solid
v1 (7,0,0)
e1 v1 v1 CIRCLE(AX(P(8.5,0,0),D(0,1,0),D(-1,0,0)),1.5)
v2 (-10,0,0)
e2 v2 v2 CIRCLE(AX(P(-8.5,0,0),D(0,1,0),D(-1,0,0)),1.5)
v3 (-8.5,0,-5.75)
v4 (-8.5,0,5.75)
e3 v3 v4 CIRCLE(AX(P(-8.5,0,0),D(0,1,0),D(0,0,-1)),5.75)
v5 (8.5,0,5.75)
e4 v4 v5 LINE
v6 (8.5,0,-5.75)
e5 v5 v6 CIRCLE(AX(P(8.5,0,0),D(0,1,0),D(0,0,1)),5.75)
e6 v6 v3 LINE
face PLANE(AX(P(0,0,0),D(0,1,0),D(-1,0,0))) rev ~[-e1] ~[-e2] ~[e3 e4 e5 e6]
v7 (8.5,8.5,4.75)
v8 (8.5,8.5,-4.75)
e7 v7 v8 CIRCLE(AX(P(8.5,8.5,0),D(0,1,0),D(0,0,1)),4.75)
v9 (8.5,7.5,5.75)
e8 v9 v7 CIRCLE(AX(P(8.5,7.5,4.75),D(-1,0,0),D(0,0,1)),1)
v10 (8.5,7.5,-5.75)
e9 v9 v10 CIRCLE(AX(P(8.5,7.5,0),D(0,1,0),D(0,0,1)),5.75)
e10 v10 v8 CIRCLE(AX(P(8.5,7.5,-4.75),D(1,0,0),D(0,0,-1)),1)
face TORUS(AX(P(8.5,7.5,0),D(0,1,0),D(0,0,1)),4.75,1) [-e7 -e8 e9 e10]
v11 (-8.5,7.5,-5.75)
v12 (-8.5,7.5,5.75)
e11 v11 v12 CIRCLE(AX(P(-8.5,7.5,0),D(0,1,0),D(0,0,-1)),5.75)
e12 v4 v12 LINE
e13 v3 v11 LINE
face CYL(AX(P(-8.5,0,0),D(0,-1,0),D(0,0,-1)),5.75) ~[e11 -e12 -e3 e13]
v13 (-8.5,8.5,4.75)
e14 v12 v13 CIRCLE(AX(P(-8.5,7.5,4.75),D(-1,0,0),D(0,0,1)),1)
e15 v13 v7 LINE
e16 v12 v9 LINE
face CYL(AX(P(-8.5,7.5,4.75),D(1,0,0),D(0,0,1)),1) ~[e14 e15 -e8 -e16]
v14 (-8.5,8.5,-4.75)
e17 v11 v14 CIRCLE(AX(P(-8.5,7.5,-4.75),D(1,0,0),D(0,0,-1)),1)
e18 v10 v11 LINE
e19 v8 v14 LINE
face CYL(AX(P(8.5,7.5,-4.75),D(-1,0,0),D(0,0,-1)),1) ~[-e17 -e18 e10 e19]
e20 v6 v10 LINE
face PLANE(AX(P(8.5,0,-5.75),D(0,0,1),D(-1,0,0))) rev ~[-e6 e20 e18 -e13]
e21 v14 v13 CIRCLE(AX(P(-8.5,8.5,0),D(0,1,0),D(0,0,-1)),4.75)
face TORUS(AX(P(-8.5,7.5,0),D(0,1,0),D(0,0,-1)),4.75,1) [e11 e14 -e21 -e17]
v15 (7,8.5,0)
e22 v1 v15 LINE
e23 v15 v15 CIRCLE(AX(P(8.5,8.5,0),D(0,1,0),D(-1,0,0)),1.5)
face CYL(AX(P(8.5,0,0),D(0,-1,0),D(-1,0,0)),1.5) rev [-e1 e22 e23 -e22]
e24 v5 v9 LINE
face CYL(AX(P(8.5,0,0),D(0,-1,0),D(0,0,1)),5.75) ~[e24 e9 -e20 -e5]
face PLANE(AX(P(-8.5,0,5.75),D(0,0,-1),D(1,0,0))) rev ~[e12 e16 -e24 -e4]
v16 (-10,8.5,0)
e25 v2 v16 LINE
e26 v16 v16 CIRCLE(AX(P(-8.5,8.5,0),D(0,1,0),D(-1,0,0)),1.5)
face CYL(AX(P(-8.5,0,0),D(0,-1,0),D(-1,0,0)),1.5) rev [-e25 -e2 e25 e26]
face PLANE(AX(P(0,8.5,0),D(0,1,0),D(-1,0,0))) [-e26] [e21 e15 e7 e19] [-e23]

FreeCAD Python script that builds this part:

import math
import FreeCAD as App
import Part
import Sketcher
from FreeCAD import Vector


def edges_at(feature, points):
    """Names of the edges that pass closest to the given points."""
    edges = feature.Shape.Edges
    near = lambda p: min(range(len(edges)), key=lambda i: edges[i].distToShape(Part.Vertex(*p))[0])
    return sorted({f"Edge{near(p) + 1}" for p in points})

doc = App.newDocument("Part")
body = doc.addObject("PartDesign::Body", "Body")

sketch1 = body.newObject("Sketcher::SketchObject", "Sketch")
sketch1.AttachmentSupport = (doc.getObject("XZ_Plane"), [""])
sketch1.MapMode = "FlatFace"
sketch1.addGeometry(Part.ArcOfCircle(Part.Circle(Vector(-8.5, 0, 0), Vector(0, 0, 1), 5.75), math.radians(90), math.radians(270)), False)
sketch1.addGeometry(Part.LineSegment(Vector(-8.5, 5.75, 0), Vector(8.5, 5.75, 0)), False)
sketch1.addGeometry(Part.ArcOfCircle(Part.Circle(Vector(8.5, 0, 0), Vector(0, 0, 1), 5.75), math.radians(-90), math.radians(90)), False)
sketch1.addGeometry(Part.LineSegment(Vector(8.5, -5.75, 0), Vector(-8.5, -5.75, 0)), False)
sketch1.addGeometry(Part.Circle(Vector(8.5, 0, 0), Vector(0, 0, 1), 1.5), False)
sketch1.addGeometry(Part.Circle(Vector(-8.5, 0, 0), Vector(0, 0, 1), 1.5), False)
sketch1.addConstraint(Sketcher.Constraint("Tangent", 0, 1, 1, 1))
sketch1.addConstraint(Sketcher.Constraint("Tangent", 1, 2, 2, 2))
sketch1.addConstraint(Sketcher.Constraint("Tangent", 2, 1, 3, 1))
sketch1.addConstraint(Sketcher.Constraint("Tangent", 3, 2, 0, 2))
sketch1.addConstraint(Sketcher.Constraint("Horizontal", 1))
sketch1.addConstraint(Sketcher.Constraint("Horizontal", 3))
sketch1.addConstraint(Sketcher.Constraint("Coincident", 4, 3, 2, 3))
sketch1.addConstraint(Sketcher.Constraint("Coincident", 5, 3, 0, 3))
sketch1.addConstraint(Sketcher.Constraint("Equal", 4, 5))
sketch1.addConstraint(Sketcher.Constraint("Symmetric", 0, 3, 2, 3, -1, 1))
sketch1.addConstraint(Sketcher.Constraint("Diameter", 4, 3.0))
sketch1.addConstraint(Sketcher.Constraint("DistanceX", 1, 1, 1, 2, 17.0))
sketch1.addConstraint(Sketcher.Constraint("Radius", 0, 5.75))
pad1 = body.newObject("PartDesign::Pad", "Pad")
pad1.Profile = sketch1
pad1.Length = 8.5
pad1.Reversed = True
doc.recompute()

fillet = body.newObject("PartDesign::Fillet", "Fillet")
fillet.Base = (pad1, edges_at(pad1, [
    (0, 8.5, 5.75),
    (14.25, 8.5, 0),
    (0, 8.5, -5.75),
    (-14.25, 8.5, 0),
]))
fillet.Radius = 1

doc.recompute()
